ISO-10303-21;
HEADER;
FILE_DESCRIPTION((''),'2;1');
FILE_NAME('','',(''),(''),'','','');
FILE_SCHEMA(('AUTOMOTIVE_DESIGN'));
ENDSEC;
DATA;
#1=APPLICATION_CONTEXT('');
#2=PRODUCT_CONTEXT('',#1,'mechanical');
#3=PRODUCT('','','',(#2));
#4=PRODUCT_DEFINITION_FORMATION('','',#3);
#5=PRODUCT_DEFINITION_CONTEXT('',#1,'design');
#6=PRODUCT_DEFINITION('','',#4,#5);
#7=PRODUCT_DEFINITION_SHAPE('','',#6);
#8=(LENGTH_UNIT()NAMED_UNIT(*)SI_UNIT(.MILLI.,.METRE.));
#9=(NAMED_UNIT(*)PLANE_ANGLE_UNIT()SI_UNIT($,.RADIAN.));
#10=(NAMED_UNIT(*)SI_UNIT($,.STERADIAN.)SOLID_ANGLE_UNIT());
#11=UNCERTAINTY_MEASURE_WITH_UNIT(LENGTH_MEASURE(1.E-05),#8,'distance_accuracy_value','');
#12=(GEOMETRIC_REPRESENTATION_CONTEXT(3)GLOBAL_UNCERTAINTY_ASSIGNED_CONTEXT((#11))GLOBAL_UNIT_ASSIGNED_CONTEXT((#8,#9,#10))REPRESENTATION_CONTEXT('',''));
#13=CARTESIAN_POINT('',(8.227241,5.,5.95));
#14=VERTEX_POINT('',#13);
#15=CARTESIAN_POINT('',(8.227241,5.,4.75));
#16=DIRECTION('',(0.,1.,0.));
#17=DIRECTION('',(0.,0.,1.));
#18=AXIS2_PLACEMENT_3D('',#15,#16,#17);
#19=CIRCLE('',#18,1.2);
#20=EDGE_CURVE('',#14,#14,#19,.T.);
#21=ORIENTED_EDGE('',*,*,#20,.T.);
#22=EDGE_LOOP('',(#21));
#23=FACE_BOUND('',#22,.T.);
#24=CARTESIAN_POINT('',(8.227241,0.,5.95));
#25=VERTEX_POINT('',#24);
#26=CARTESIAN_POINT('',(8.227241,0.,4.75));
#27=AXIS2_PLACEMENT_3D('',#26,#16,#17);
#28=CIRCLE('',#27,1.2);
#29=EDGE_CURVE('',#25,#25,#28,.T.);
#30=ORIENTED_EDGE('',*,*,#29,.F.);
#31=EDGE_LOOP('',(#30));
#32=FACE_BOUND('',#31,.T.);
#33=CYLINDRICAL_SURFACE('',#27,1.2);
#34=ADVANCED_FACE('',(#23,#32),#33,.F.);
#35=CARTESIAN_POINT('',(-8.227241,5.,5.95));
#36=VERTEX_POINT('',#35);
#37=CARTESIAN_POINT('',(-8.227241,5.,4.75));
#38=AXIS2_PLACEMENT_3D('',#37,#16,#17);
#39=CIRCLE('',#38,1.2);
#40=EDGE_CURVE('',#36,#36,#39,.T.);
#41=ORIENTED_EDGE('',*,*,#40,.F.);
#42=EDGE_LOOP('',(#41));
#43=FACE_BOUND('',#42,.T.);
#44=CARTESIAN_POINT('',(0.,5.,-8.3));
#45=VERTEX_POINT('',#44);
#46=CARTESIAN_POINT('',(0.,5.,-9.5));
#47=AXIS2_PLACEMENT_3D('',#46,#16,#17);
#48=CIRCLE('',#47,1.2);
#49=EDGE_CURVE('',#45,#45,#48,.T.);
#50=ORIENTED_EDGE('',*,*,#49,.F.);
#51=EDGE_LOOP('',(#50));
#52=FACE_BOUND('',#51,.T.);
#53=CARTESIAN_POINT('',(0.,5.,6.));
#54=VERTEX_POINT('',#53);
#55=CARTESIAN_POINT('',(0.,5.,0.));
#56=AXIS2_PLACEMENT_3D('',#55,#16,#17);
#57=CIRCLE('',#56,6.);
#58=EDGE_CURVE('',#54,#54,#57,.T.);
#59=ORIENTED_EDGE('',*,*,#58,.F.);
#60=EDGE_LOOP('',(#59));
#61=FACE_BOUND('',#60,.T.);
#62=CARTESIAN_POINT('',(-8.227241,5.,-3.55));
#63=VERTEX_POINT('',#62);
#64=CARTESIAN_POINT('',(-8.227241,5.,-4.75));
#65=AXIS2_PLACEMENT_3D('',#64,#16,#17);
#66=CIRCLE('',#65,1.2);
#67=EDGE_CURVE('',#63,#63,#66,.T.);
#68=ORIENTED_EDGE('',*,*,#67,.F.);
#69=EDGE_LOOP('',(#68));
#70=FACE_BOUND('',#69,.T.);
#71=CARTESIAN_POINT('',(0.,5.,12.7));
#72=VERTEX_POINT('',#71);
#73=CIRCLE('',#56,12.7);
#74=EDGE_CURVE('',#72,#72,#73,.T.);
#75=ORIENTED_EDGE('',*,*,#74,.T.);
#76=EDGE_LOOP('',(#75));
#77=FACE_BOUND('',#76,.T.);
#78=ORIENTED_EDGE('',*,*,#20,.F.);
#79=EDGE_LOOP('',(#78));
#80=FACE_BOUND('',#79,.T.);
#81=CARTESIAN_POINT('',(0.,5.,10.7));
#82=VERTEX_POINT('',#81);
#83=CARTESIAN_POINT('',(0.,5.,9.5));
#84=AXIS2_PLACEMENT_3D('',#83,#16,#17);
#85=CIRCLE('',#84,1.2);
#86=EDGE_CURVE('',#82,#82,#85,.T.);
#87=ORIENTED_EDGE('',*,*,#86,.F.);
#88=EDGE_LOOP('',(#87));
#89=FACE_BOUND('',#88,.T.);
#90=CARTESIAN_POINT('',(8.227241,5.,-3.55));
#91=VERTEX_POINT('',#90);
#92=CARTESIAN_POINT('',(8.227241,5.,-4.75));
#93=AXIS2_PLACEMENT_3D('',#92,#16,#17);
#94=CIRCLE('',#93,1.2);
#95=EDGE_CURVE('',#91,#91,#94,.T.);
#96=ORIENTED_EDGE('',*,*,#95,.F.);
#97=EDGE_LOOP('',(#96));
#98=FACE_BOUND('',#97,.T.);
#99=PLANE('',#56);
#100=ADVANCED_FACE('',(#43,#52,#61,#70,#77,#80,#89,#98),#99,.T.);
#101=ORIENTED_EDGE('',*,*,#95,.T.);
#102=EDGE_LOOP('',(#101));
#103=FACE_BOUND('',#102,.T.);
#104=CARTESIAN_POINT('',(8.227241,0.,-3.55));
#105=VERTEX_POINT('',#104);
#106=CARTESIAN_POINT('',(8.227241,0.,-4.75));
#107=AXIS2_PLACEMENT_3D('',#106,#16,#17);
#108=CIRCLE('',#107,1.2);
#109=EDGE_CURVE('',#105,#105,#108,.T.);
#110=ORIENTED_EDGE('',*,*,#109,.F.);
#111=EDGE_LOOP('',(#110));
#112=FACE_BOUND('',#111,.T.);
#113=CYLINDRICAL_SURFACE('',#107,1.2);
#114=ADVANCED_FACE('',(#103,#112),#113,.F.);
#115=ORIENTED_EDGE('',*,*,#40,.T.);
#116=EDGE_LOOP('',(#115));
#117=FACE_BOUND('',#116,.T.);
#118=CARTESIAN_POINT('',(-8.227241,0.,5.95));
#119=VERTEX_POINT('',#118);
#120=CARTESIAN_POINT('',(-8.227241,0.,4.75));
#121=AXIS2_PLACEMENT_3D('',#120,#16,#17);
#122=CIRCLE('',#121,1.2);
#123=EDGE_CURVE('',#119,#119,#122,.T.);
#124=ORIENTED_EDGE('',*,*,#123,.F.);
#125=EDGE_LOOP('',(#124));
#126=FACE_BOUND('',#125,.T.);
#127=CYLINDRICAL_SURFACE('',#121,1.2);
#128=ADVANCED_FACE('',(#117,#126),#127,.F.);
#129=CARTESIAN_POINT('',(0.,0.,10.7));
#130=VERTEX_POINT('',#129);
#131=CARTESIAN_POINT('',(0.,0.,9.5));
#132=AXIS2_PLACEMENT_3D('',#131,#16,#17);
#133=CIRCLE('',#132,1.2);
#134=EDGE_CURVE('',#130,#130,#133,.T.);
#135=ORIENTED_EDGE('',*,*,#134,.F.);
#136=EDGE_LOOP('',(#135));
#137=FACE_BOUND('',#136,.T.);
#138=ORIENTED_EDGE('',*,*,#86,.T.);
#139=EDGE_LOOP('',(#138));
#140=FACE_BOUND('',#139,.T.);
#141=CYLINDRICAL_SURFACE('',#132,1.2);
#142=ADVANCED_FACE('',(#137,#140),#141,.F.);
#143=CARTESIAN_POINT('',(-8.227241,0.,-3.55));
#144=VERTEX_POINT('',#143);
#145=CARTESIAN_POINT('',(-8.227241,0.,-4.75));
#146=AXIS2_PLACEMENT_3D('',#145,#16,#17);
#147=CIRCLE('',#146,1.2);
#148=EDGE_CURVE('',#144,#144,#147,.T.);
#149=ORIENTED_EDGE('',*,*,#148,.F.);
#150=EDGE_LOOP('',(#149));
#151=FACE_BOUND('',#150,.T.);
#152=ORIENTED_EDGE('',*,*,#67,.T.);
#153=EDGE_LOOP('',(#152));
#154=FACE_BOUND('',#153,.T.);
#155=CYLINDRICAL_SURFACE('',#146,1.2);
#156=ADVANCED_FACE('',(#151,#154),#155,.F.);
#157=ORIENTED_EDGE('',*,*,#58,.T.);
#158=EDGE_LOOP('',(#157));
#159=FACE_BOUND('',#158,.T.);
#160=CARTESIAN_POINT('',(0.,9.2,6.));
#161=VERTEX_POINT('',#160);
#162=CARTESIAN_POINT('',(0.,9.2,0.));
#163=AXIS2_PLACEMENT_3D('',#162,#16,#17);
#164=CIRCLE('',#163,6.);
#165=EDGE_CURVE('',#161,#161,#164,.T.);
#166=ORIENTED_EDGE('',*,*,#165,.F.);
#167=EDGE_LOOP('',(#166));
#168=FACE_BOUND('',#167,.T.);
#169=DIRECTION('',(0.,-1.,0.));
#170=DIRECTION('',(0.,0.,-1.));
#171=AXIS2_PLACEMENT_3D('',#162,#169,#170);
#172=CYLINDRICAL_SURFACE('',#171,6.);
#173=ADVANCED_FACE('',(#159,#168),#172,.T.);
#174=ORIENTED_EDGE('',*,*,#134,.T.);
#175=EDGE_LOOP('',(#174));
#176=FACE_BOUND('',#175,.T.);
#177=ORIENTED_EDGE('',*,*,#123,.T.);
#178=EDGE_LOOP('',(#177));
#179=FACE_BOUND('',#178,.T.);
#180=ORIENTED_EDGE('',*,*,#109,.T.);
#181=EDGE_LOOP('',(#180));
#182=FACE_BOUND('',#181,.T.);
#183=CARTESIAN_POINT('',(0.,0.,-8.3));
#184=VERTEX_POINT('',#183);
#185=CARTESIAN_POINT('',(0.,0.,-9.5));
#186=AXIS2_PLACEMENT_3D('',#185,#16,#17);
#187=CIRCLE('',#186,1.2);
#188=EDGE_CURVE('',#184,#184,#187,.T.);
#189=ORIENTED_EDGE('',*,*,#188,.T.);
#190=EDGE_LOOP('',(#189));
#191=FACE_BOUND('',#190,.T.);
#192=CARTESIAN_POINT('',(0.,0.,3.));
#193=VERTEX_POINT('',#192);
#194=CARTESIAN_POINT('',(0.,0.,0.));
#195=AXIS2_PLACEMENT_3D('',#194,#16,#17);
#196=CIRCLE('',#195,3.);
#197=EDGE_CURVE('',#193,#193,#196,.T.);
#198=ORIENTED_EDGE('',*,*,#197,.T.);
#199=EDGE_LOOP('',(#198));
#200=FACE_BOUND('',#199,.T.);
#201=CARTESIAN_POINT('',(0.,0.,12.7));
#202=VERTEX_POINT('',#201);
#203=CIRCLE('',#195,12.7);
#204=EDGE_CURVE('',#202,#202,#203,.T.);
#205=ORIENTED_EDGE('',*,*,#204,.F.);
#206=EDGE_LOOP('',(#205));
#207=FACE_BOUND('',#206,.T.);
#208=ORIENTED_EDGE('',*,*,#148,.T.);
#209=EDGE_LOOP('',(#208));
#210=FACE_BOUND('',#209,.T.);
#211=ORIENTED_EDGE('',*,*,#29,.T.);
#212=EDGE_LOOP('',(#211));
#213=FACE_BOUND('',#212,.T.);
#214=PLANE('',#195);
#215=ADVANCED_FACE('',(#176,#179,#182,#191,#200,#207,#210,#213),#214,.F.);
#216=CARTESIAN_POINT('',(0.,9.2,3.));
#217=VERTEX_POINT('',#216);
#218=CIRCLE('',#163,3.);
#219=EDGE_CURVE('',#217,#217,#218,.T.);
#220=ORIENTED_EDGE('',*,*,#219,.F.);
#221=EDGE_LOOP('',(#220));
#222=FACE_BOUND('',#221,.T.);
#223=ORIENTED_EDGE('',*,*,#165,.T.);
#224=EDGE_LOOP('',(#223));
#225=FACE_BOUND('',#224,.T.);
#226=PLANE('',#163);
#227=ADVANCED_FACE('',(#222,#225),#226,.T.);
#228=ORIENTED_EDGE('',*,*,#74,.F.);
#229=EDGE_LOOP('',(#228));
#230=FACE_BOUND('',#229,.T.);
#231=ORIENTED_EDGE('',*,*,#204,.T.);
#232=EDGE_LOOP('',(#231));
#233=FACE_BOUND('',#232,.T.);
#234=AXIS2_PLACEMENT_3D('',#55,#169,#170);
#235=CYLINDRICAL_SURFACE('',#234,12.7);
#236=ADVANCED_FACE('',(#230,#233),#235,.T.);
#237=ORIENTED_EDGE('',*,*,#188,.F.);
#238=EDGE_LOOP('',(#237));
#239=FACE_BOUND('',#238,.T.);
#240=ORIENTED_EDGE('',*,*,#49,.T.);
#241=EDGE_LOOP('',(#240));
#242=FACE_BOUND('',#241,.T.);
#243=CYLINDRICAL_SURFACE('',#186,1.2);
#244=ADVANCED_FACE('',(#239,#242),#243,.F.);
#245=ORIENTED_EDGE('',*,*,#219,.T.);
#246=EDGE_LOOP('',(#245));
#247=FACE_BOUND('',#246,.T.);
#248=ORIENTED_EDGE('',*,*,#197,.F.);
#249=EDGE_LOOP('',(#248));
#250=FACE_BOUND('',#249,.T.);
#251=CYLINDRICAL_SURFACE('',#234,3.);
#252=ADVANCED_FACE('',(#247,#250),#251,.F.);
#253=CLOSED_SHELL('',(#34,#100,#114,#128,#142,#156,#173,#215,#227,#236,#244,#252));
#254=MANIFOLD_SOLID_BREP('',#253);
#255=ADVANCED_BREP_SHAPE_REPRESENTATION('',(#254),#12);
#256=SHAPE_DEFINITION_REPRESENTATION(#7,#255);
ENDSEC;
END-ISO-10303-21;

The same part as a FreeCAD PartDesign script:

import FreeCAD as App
import Part
import Sketcher
from FreeCAD import Vector

doc = App.newDocument("Part")
params = doc.addObject("Spreadsheet::Sheet", "Params")
for row, (alias, value) in enumerate([
    ("sketch1_diameter", "6 mm"),
    ("sketch1_diameter2", "25.4 mm"),
    ("pad1_length", "5 mm"),
    ("sketch2_diameter", "12 mm"),
    ("sketch2_diameter2", "6 mm"),
    ("pad2_length", "4.2 mm"),
    ("sketch3_diameter", "2.4 mm"),
], start=1):
    params.set(f"A{row}", alias)
    params.set(f"B{row}", "=" + value)
    params.setAlias(f"B{row}", alias)

body = doc.addObject("PartDesign::Body", "Body")

sketch1 = body.newObject("Sketcher::SketchObject", "Sketch")
sketch1.AttachmentSupport = (doc.getObject("XZ_Plane"), [""])
sketch1.MapMode = "FlatFace"
sketch1.addGeometry([
    Part.Circle(Vector(0, 0, 0), Vector(0, 0, 1), 12.7),
    Part.Circle(Vector(0, 0, 0), Vector(0, 0, 1), 3),
], False)
sketch1.addConstraint([
    Sketcher.Constraint("Coincident", 0, 3, -1, 1),
    Sketcher.Constraint("Coincident", 1, 3, -1, 1),
    Sketcher.Constraint("Diameter", 1, 6.0),
    Sketcher.Constraint("Diameter", 0, 25.4),
])
sketch1.setExpression("Constraints[2]", "Params.sketch1_diameter")
sketch1.setExpression("Constraints[3]", "Params.sketch1_diameter2")
pad1 = body.newObject("PartDesign::Pad", "Pad")
pad1.Profile = sketch1
pad1.setExpression("Length", "Params.pad1_length")
pad1.Reversed = True

sketch2 = body.newObject("Sketcher::SketchObject", "Sketch001")
sketch2.AttachmentSupport = (doc.getObject("XZ_Plane"), [""])
sketch2.MapMode = "FlatFace"
sketch2.AttachmentOffset = App.Placement(Vector(0, 0, -5), App.Rotation())
sketch2.addGeometry([
    Part.Circle(Vector(0, 0, 0), Vector(0, 0, 1), 6),
    Part.Circle(Vector(0, 0, 0), Vector(0, 0, 1), 3),
], False)
sketch2.addConstraint([
    Sketcher.Constraint("Coincident", 0, 3, -1, 1),
    Sketcher.Constraint("Coincident", 1, 3, -1, 1),
    Sketcher.Constraint("Diameter", 0, 12.0),
    Sketcher.Constraint("Diameter", 1, 6.0),
])
sketch2.setExpression("Constraints[2]", "Params.sketch2_diameter")
sketch2.setExpression("Constraints[3]", "Params.sketch2_diameter2")
pad2 = body.newObject("PartDesign::Pad", "Pad001")
pad2.Profile = sketch2
pad2.setExpression("Length", "Params.pad2_length")
pad2.Reversed = True

sketch3 = body.newObject("Sketcher::SketchObject", "Sketch002")
sketch3.AttachmentSupport = (doc.getObject("XZ_Plane"), [""])
sketch3.MapMode = "FlatFace"
sketch3.AttachmentOffset = App.Placement(Vector(0, 0, -5), App.Rotation())
sketch3.addGeometry([
    Part.Circle(Vector(0, -9.5, 0), Vector(0, 0, 1), 1.2),
    Part.Circle(Vector(8.2, -4.8, 0), Vector(0, 0, 1), 1.2),
    Part.Circle(Vector(8.2, 4.8, 0), Vector(0, 0, 1), 1.2),
    Part.Circle(Vector(0, 9.5, 0), Vector(0, 0, 1), 1.2),
    Part.Circle(Vector(-8.2, 4.8, 0), Vector(0, 0, 1), 1.2),
    Part.Circle(Vector(-8.2, -4.8, 0), Vector(0, 0, 1), 1.2),
], False)
sketch3.addConstraint([
    Sketcher.Constraint("Equal", 0, 1),
    Sketcher.Constraint("Equal", 1, 2),
    Sketcher.Constraint("Equal", 2, 3),
    Sketcher.Constraint("Equal", 3, 4),
    Sketcher.Constraint("Equal", 4, 5),
    Sketcher.Constraint("Symmetric", 0, 3, 3, 3, -1, 1),
    Sketcher.Constraint("Symmetric", 1, 3, 4, 3, -1, 1),
    Sketcher.Constraint("Symmetric", 2, 3, 5, 3, -1, 1),
    Sketcher.Constraint("Symmetric", 2, 3, 4, 3, -2),
    Sketcher.Constraint("PointOnObject", 0, 3, -2),
    Sketcher.Constraint("Diameter", 0, 2.4),
    Sketcher.Constraint("DistanceY", 0, 3, 3, 3, 19.0),
    Sketcher.Constraint("DistanceY", 1, 3, 2, 3, 9.5),
    Sketcher.Constraint("DistanceX", -1, 1, 1, 3, 8.227241),
])
sketch3.setExpression("Constraints[10]", "Params.sketch3_diameter")
pocket1 = body.newObject("PartDesign::Pocket", "Pocket")
pocket1.Profile = sketch3
pocket1.Type = "ThroughAll"
pocket1.Reversed = True

doc.recompute()
